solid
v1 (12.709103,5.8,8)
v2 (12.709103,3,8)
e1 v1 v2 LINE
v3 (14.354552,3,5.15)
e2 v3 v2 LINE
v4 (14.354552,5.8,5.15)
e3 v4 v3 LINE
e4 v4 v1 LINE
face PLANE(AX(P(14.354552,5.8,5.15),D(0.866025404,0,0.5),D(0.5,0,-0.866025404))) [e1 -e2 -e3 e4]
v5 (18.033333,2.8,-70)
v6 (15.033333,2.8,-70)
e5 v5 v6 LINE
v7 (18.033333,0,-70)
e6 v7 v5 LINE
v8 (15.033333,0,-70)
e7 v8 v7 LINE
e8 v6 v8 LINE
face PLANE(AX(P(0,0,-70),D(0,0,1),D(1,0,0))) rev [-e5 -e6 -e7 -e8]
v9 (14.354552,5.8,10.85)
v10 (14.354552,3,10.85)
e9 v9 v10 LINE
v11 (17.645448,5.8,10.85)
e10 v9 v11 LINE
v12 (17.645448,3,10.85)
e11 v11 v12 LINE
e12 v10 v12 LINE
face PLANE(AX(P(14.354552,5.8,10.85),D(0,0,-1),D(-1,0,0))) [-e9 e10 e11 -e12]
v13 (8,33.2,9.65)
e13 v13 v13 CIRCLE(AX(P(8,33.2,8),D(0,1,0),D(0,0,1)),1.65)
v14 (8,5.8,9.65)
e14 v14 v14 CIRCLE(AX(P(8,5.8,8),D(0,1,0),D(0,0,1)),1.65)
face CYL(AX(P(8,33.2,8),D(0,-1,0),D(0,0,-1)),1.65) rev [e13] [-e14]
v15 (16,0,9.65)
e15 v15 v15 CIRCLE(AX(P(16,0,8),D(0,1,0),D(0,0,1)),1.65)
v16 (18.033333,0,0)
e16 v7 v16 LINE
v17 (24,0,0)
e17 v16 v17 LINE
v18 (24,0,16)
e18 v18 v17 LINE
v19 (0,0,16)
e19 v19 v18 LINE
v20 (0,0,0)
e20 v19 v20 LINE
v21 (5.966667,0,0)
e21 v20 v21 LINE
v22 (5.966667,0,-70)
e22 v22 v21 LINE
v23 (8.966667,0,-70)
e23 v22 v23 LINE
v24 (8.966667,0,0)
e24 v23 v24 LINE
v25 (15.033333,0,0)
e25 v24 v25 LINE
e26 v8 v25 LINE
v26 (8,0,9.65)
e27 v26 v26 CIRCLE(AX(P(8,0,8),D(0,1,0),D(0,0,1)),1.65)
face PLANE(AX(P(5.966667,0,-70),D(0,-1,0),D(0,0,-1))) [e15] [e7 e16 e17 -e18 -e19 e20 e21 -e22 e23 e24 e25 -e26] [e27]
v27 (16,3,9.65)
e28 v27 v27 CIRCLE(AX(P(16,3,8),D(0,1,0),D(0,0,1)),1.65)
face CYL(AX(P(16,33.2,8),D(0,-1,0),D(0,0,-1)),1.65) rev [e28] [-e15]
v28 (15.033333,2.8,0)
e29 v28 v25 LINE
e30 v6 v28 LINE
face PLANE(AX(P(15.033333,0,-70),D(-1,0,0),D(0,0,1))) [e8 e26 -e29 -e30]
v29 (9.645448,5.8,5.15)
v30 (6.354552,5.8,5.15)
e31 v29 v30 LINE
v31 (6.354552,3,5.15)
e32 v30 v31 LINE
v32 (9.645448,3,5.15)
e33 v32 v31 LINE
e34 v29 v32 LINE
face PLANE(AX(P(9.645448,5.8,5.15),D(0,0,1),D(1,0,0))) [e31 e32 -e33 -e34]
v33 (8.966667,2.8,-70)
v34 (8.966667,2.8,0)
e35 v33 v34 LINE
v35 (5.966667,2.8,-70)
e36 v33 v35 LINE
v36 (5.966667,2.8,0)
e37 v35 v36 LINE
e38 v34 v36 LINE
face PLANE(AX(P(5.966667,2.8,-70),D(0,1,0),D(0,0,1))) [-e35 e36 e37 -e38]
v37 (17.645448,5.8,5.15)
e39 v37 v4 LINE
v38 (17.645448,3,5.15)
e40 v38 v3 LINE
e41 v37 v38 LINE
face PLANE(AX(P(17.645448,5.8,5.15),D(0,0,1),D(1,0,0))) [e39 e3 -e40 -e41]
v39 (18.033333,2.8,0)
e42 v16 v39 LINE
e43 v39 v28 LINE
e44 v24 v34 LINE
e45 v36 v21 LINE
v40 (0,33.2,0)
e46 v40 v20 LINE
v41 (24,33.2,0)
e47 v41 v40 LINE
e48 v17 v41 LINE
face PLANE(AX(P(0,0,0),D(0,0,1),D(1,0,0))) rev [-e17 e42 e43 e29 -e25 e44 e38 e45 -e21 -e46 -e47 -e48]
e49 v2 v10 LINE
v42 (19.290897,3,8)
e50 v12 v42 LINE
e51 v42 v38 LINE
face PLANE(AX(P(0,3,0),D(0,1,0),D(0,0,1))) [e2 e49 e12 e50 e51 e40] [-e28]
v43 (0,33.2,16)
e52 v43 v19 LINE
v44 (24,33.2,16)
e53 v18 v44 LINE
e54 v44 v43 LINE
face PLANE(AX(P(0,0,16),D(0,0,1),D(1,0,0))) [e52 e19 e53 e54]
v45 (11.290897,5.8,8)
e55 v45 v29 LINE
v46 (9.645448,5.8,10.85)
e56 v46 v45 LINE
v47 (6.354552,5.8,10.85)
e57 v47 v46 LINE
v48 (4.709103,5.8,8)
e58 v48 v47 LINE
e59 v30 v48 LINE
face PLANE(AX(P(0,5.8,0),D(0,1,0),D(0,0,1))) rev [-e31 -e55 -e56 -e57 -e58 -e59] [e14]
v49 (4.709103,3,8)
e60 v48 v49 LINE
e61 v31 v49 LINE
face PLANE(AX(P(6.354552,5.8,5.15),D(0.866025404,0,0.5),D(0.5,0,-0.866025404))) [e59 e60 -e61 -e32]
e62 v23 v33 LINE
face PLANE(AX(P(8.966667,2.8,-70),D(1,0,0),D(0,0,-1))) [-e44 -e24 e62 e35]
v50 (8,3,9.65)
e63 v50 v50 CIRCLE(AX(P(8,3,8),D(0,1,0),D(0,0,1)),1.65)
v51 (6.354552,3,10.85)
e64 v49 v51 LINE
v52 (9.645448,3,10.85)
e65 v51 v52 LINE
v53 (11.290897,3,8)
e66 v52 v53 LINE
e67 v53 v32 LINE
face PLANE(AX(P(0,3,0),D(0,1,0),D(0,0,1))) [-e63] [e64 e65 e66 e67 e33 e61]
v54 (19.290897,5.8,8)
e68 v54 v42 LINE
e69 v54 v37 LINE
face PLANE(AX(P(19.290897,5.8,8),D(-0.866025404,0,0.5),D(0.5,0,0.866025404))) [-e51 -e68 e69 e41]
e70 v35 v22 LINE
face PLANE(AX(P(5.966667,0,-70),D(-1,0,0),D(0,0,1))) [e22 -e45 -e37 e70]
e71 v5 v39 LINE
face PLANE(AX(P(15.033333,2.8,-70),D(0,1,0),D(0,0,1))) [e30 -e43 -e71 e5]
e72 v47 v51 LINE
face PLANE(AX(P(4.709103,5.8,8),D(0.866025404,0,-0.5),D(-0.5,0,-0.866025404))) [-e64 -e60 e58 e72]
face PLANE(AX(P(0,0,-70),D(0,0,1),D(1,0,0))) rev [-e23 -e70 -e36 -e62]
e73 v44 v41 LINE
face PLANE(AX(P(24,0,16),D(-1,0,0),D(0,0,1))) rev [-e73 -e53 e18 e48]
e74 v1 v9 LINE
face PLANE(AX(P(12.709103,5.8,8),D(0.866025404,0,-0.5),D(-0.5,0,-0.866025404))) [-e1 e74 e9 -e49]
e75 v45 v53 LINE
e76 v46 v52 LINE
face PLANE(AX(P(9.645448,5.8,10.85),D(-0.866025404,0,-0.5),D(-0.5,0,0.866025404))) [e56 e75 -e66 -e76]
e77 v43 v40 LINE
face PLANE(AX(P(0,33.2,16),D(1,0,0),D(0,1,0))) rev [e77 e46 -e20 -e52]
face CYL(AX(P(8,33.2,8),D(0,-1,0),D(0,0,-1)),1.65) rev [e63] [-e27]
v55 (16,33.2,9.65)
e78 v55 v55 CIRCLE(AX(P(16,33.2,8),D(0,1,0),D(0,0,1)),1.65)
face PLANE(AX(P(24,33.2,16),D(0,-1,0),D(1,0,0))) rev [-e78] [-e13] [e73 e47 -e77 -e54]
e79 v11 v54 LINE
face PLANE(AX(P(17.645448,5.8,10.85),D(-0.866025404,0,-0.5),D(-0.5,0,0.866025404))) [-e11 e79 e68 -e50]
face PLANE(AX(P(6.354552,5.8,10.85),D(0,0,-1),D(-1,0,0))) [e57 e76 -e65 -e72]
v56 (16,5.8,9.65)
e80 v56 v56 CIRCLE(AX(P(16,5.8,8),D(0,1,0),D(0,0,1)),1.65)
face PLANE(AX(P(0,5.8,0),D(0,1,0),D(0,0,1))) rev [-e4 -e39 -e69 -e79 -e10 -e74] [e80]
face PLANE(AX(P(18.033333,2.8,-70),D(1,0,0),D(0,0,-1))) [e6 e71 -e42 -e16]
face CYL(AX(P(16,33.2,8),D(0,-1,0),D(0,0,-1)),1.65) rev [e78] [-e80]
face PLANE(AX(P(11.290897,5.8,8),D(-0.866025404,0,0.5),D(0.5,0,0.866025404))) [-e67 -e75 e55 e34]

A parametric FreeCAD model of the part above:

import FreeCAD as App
import Part
import Sketcher

V = App.Vector
Q = App.Units.Quantity


def add_polygon(sketch, points):
    """Adds a closed chain of lines whose ends are joined by coincident constraints."""
    first, n = sketch.GeometryCount, len(points)
    for a, b in zip(points, points[1:] + points[:1]):
        sketch.addGeometry(Part.LineSegment(App.Vector(*a, 0), App.Vector(*b, 0)), False)
    for i in range(n):
        sketch.addConstraint(Sketcher.Constraint("Coincident", first + i, 2, first + (i + 1) % n, 1))

doc = App.newDocument("Part")
body = doc.addObject("PartDesign::Body", "Body")

# Sketch on XY plane
sketch1 = body.newObject("Sketcher::SketchObject", "Sketch")
sketch1.AttachmentSupport = (doc.getObject("XY_Plane"), [""])
sketch1.MapMode = "FlatFace"
add_polygon(sketch1, [(6, 2.8), (6, 0), (9, 0), (9, 2.8)])  # lines 0-3
sketch1.addConstraint([
    Sketcher.Constraint("Vertical", 0),
    Sketcher.Constraint("Horizontal", 1),
    Sketcher.Constraint("Vertical", 2),
    Sketcher.Constraint("Horizontal", 3),
    Sketcher.Constraint("PointOnObject", 0, 2, -1),
    Sketcher.Constraint("DistanceX", 1, 1, 1, 2, 3.0),
    Sketcher.Constraint("DistanceY", 0, 2, 0, 1, 2.8),
    Sketcher.Constraint("DistanceX", -1, 1, 0, 2, 5.966667),
])
pad1 = body.newObject("PartDesign::Pad", "Pad")
pad1.Profile = sketch1
pad1.Length = 70
pad1.Reversed = True
body2 = doc.addObject("PartDesign::Body", "Body001")

# Sketch on XY plane
sketch2 = body2.newObject("Sketcher::SketchObject", "Sketch001")
sketch2.AttachmentSupport = (doc.getObject("XY_Plane001"), [""])
sketch2.MapMode = "FlatFace"
add_polygon(sketch2, [(15, 2.8), (15, 0), (18, 0), (18, 2.8)])  # lines 0-3
sketch2.addConstraint([
    Sketcher.Constraint("Vertical", 0),
    Sketcher.Constraint("Horizontal", 1),
    Sketcher.Constraint("Vertical", 2),
    Sketcher.Constraint("Horizontal", 3),
    Sketcher.Constraint("PointOnObject", 0, 2, -1),
    Sketcher.Constraint("DistanceX", 1, 1, 1, 2, 3.0),
    Sketcher.Constraint("DistanceY", 0, 2, 0, 1, 2.8),
    Sketcher.Constraint("DistanceX", -1, 1, 0, 2, 15.033333),
])
pad2 = body2.newObject("PartDesign::Pad", "Pad001")
pad2.Profile = sketch2
pad2.Length = 70
pad2.Reversed = True
body.AllowCompound = True
doc.recompute()

boolean = body.newObject("PartDesign::Boolean", "Boolean")
boolean.Type = "Fuse"
boolean.addObjects([body2])

# Sketch on XY plane
sketch3 = body.newObject("Sketcher::SketchObject", "Sketch002")
sketch3.AttachmentSupport = (doc.getObject("XY_Plane"), [""])
sketch3.MapMode = "FlatFace"
add_polygon(sketch3, [(0, 33), (0, 0), (24, 0), (24, 33)])  # lines 0-3
sketch3.addConstraint([
    Sketcher.Constraint("Vertical", 0),
    Sketcher.Constraint("Horizontal", 1),
    Sketcher.Constraint("Vertical", 2),
    Sketcher.Constraint("Horizontal", 3),
    Sketcher.Constraint("Coincident", 0, 2, -1, 1),
    Sketcher.Constraint("DistanceX", 1, 1, 1, 2, 24.0),
    Sketcher.Constraint("DistanceY", 0, 2, 0, 1, 33.2),
])
pad3 = body.newObject("PartDesign::Pad", "Pad002")
pad3.Profile = sketch3
pad3.Length = 16

# Sketch on XZ plane
sketch4 = body.newObject("Sketcher::SketchObject", "Sketch003")
sketch4.AttachmentSupport = (doc.getObject("XZ_Plane"), [""])
sketch4.MapMode = "FlatFace"
sketch4.addGeometry([
    Part.Circle(V(8, 8, 0), V(0, 0, 1), 1.6),
    Part.Circle(V(16, 8, 0), V(0, 0, 1), 1.6),
], False)
sketch4.addConstraint([
    Sketcher.Constraint("Equal", 0, 1),
    Sketcher.Constraint("Horizontal", 0, 3, 1, 3),
    Sketcher.Constraint("Diameter", 0, 3.3),
    Sketcher.Constraint("DistanceX", -1, 1, 0, 3, 8.0),
    Sketcher.Constraint("DistanceY", -1, 1, 0, 3, 8.0),
    Sketcher.Constraint("DistanceX", -1, 1, 1, 3, 16.0),
])
pocket1 = body.newObject("PartDesign::Pocket", "Pocket")
pocket1.Profile = sketch4
pocket1.Type = "ThroughAll"

# Sketch on XZ plane
sketch5 = body.newObject("Sketcher::SketchObject", "Sketch004")
sketch5.AttachmentSupport = (doc.getObject("XZ_Plane"), [""])
sketch5.MapMode = "FlatFace"
sketch5.AttachmentOffset = App.Placement(V(0, 0, -3), App.Rotation())
add_polygon(sketch5, [(11.3, 8), (9.6, 5.2), (6.4, 5.2), (4.7, 8), (6.4, 10.8), (9.6, 10.8)])  # lines 0-5
add_polygon(sketch5, [(19.3, 8), (17.6, 5.2), (14.4, 5.2), (12.7, 8), (14.4, 10.8), (17.6, 10.8)])  # lines 6-11
sketch5.addConstraint([
    Sketcher.Constraint("Horizontal", 1),
    Sketcher.Constraint("Horizontal", 4),
    Sketcher.Constraint("Horizontal", 7),
    Sketcher.Constraint("Horizontal", 10),
    Sketcher.Constraint("Parallel", 0, 3),
    Sketcher.Constraint("Parallel", 2, 5),
    Sketcher.Constraint("Parallel", 3, 6),
    Sketcher.Constraint("Parallel", 5, 8),
    Sketcher.Constraint("Parallel", 6, 9),
    Sketcher.Constraint("Parallel", 8, 11),
    Sketcher.Constraint("Horizontal", 2, 2, 5, 2),
    Sketcher.Constraint("Horizontal", 1, 2, 6, 2),
    Sketcher.Constraint("Horizontal", 5, 2, 8, 2),
    Sketcher.Constraint("Horizontal", 4, 2, 9, 2),
    Sketcher.Constraint("Horizontal", 8, 2, 11, 2),
    Sketcher.Constraint("Vertical", 1, 2, 3, 2),
    Sketcher.Constraint("Vertical", 0, 2, 4, 2),
    Sketcher.Constraint("Equal", 4, 7),
    Sketcher.Constraint("Angle", 0, Q("-120 deg")),
    Sketcher.Constraint("DistanceY", -1, 1, 2, 2, 8.0),
    Sketcher.Constraint("DistanceX", 0, 2, 6, 2, 8.0),
    Sketcher.Constraint("DistanceY", 1, 2, 3, 2, 5.7),
    Sketcher.Constraint("DistanceX", 1, 2, 1, 1, 3.290897),
    Sketcher.Constraint("DistanceX", -1, 1, 0, 2, 9.645448),
])
pocket2 = body.newObject("PartDesign::Pocket", "Pocket001")
pocket2.Profile = sketch5
pocket2.Length = 2.8

doc.recompute()
